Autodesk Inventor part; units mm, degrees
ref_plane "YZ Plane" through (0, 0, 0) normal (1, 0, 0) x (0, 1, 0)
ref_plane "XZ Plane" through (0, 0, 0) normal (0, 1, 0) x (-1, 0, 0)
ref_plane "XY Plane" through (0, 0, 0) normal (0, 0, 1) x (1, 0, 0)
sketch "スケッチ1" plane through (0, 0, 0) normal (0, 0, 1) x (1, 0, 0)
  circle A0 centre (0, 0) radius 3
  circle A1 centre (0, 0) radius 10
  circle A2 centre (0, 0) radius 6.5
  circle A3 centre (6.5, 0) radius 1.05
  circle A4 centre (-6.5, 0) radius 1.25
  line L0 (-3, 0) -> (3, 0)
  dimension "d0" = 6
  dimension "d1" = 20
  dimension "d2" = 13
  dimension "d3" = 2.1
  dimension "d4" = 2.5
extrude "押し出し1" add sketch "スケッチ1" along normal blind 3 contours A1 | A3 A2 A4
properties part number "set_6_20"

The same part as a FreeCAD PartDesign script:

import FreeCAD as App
import Part
import Sketcher

V = App.Vector

doc = App.newDocument("Part")
body = doc.addObject("PartDesign::Body", "Body")

# Sketch on XY plane
sketch1 = body.newObject("Sketcher::SketchObject", "Sketch")
sketch1.AttachmentSupport = (doc.getObject("XY_Plane"), [""])
sketch1.MapMode = "FlatFace"
sketch1.addGeometry(Part.Circle(V(0, 0, 0), V(0, 0, 1), 10), False)
sketch1.addGeometry(Part.Circle(V(-6.5, 0, 0), V(0, 0, 1), 1.25), False)
sketch1.addGeometry(Part.Circle(V(6.5, 0, 0), V(0, 0, 1), 1.05), False)
sketch1.addGeometry(Part.Circle(V(0, 0, 0), V(0, 0, 1), 3), False)
sketch1.addConstraint(Sketcher.Constraint("Coincident", 0, 3, -1, 1))
sketch1.addConstraint(Sketcher.Constraint("Coincident", 3, 3, -1, 1))
sketch1.addConstraint(Sketcher.Constraint("Symmetric", 1, 3, 2, 3, -1, 1))
sketch1.addConstraint(Sketcher.Constraint("PointOnObject", 1, 3, -1))
sketch1.addConstraint(Sketcher.Constraint("Diameter", 0, 20.0))
sketch1.addConstraint(Sketcher.Constraint("Diameter", 3, 6.0))
sketch1.addConstraint(Sketcher.Constraint("Diameter", 1, 2.5))
sketch1.addConstraint(Sketcher.Constraint("Diameter", 2, 2.1))
sketch1.addConstraint(Sketcher.Constraint("DistanceX", 1, 3, 2, 3, 13.0))
pad1 = body.newObject("PartDesign::Pad", "Pad")
pad1.Profile = sketch1
pad1.Length = 3

doc.recompute()
